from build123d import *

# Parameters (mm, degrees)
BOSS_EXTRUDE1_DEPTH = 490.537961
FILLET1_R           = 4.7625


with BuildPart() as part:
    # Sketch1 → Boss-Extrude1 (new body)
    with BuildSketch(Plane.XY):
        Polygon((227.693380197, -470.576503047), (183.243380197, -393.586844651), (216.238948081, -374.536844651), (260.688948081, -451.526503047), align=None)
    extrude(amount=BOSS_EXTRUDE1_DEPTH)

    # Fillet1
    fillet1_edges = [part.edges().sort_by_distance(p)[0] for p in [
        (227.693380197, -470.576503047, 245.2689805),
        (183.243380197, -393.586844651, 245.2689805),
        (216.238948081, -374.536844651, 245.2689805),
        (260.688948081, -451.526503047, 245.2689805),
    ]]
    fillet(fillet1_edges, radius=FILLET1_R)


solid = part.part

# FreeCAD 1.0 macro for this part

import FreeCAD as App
import Part
import Sketcher
Q = App.Units.Quantity


def edges_at(feature, points):
    """Names of the edges that pass closest to the given points."""
    edges = feature.Shape.Edges
    near = lambda p: min(range(len(edges)), key=lambda i: edges[i].distToShape(Part.Vertex(*p))[0])
    return sorted({f"Edge{near(p) + 1}" for p in points})


def add_polygon(sketch, points):
    """Adds a closed chain of lines whose ends are joined by coincident constraints."""
    first, n = sketch.GeometryCount, len(points)
    for a, b in zip(points, points[1:] + points[:1]):
        sketch.addGeometry(Part.LineSegment(App.Vector(*a, 0), App.Vector(*b, 0)), False)
    for i in range(n):
        sketch.addConstraint(Sketcher.Constraint("Coincident", first + i, 2, first + (i + 1) % n, 1))

doc = App.newDocument("Part")
params = doc.addObject("Spreadsheet::Sheet", "Params")
for row, (alias, value) in enumerate([
    ("sketch1_length", "3.5 in"),
    ("sketch1_length2", "1.5 in"),
    ("pad1_length", "490.537961 mm"),
    ("fillet_radius", "0.1875 in"),
], start=1):
    params.set(f"A{row}", alias)
    params.set(f"B{row}", "=" + value)
    params.setAlias(f"B{row}", alias)

body = doc.addObject("PartDesign::Body", "Body")

# Sketch on XY plane
sketch1 = doc.addObject("Sketcher::SketchObject", "Sketch")
body.addObject(sketch1)
sketch1.AttachmentSupport = (doc.XY_Plane, [""])
sketch1.MapMode = "FlatFace"
add_polygon(sketch1, [(183.24338, -393.586845), (227.69338, -470.576503), (260.688948, -451.526503), (216.238948, -374.536845)])  # lines 0-3
sketch1.addConstraint([
    Sketcher.Constraint("Perpendicular", 0, 1),
    Sketcher.Constraint("Perpendicular", 1, 2),
    Sketcher.Constraint("Perpendicular", 2, 3),
    Sketcher.Constraint("Angle", 0, Q("-60 deg")),
    Sketcher.Constraint("Distance", 0, Q("3.5 in")),
    Sketcher.Constraint("Distance", 1, Q("1.5 in")),
    Sketcher.Constraint("DistanceX", -1, 1, 0, 2, 227.69338),
    Sketcher.Constraint("DistanceY", 0, 2, -1, 1, 470.576503),
])
sketch1.setExpression("Constraints[8]", "Params.sketch1_length")
sketch1.setExpression("Constraints[9]", "Params.sketch1_length2")
pad1 = doc.addObject("PartDesign::Pad", "Pad")
body.addObject(pad1)
pad1.Profile = sketch1
pad1.setExpression("Length", "Params.pad1_length")
doc.recompute()

fillet = doc.addObject("PartDesign::Fillet", "Fillet")
body.addObject(fillet)
fillet.Base = (pad1, edges_at(pad1, [
    (227.693, -470.577, 245.269),
    (183.243, -393.587, 245.269),
    (216.239, -374.537, 245.269),
    (260.689, -451.527, 245.269),
]))
fillet.setExpression("Radius", "Params.fillet_radius")

doc.recompute()
